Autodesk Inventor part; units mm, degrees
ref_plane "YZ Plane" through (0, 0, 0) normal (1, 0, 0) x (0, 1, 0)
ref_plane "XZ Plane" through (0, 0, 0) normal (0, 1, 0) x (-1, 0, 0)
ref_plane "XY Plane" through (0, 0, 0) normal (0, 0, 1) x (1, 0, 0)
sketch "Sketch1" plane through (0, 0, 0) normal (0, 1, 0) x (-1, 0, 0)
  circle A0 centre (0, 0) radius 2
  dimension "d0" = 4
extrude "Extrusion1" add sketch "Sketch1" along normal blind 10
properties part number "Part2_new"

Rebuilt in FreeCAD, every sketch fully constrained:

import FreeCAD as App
import Part
import Sketcher
Q = App.Units.Quantity

doc = App.newDocument("Part")
params = doc.addObject("Spreadsheet::Sheet", "Params")
for row, (alias, value) in enumerate([
    ("sketch1_diameter", "4 mm"),
    ("pad1_length", "10 mm"),
], start=1):
    params.set(f"A{row}", alias)
    params.set(f"B{row}", "=" + value)
    params.setAlias(f"B{row}", alias)

body = doc.addObject("PartDesign::Body", "Body")

sketch1 = doc.addObject("Sketcher::SketchObject", "Sketch")
body.addObject(sketch1)
sketch1.AttachmentSupport = (doc.XZ_Plane, [""])
sketch1.MapMode = "FlatFace"
sketch1.addGeometry(Part.Circle(App.Vector(0, 0, 0), App.Vector(0, 0, 1), 2), False)
sketch1.addConstraint([
    Sketcher.Constraint("Coincident", 0, 3, -1, 1),
    Sketcher.Constraint("Diameter", 0, Q("4 mm")),
])
sketch1.setExpression("Constraints[1]", "Params.sketch1_diameter")
pad1 = doc.addObject("PartDesign::Pad", "Pad")
body.addObject(pad1)
pad1.Profile = sketch1
pad1.setExpression("Length", "Params.pad1_length")
pad1.Reversed = True

doc.recompute()
